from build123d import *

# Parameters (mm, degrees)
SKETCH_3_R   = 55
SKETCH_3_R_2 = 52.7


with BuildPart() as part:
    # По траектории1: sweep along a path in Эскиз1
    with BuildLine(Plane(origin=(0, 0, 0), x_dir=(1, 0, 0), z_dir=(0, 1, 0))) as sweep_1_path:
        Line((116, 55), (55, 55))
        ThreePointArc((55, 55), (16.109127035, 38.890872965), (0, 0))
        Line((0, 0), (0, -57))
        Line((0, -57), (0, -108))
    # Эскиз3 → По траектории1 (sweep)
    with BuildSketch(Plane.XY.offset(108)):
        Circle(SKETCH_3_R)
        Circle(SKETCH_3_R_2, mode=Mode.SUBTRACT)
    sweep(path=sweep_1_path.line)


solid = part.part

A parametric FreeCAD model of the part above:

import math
import FreeCAD as App
import Part
import Sketcher

V = App.Vector
Q = App.Units.Quantity

doc = App.newDocument("Part")
params = doc.addObject("Spreadsheet::Sheet", "Params")
for row, (alias, value) in enumerate([
    ("sketch1_diameter", "110 mm"),
    ("sketch1_diameter2", "105.4 mm"),
    ("sketch2_radius", "55 mm"),
    ("sketch2_width", "61 mm"),
    ("sketch2_height", "108 mm"),
], start=1):
    params.set(f"A{row}", alias)
    params.set(f"B{row}", "=" + value)
    params.setAlias(f"B{row}", alias)

body = doc.addObject("PartDesign::Body", "Body")

sketch1 = doc.addObject("Sketcher::SketchObject", "Sketch")
body.addObject(sketch1)
sketch1.AttachmentSupport = (doc.XY_Plane, [""])
sketch1.MapMode = "FlatFace"
sketch1.AttachmentOffset = App.Placement(V(0, 0, 108), App.Rotation())
sketch1.addGeometry([
    Part.Circle(V(0, 0, 0), V(0, 0, 1), 55),
    Part.Circle(V(0, 0, 0), V(0, 0, 1), 53),
], False)
sketch1.addConstraint([
    Sketcher.Constraint("Coincident", 0, 3, -1, 1),
    Sketcher.Constraint("Coincident", 1, 3, -1, 1),
    Sketcher.Constraint("Diameter", 0, Q("110 mm")),
    Sketcher.Constraint("Diameter", 1, Q("105.4 mm")),
])
sketch1.setExpression("Constraints[2]", "Params.sketch1_diameter")
sketch1.setExpression("Constraints[3]", "Params.sketch1_diameter2")

sketch2 = doc.addObject("Sketcher::SketchObject", "Sketch001")
body.addObject(sketch2)
sketch2.AttachmentSupport = (doc.XZ_Plane, [""])
sketch2.MapMode = "FlatFace"
sketch2.addGeometry([
    Part.LineSegment(V(116, -55, 0), V(55, -55, 0)),
    Part.ArcOfCircle(Part.Circle(V(55, 0, 0), V(0, 0, 1), 55), math.radians(-180), math.radians(-90)),
    Part.LineSegment(V(0, 0, 0), V(0, 108, 0)),
], False)
sketch2.addConstraint([
    Sketcher.Constraint("Tangent", 0, 2, 1, 2),
    Sketcher.Constraint("Tangent", 1, 1, 2, 1),
    Sketcher.Constraint("Horizontal", 0),
    Sketcher.Constraint("Vertical", 2),
    Sketcher.Constraint("Coincident", 1, 1, -1, 1),
    Sketcher.Constraint("Radius", 1, Q("55 mm")),
    Sketcher.Constraint("DistanceX", 0, 2, 0, 1, Q("61 mm")),
    Sketcher.Constraint("DistanceY", 2, 1, 2, 2, Q("108 mm")),
])
sketch2.setExpression("Constraints[5]", "Params.sketch2_radius")
sketch2.setExpression("Constraints[6]", "Params.sketch2_width")
sketch2.setExpression("Constraints[7]", "Params.sketch2_height")
doc.recompute()

additivepipe = doc.addObject("PartDesign::AdditivePipe", "AdditivePipe")
body.addObject(additivepipe)
additivepipe.Profile = sketch1
additivepipe.Spine = (sketch2, ["Edge1", "Edge2", "Edge3"])

doc.recompute()
